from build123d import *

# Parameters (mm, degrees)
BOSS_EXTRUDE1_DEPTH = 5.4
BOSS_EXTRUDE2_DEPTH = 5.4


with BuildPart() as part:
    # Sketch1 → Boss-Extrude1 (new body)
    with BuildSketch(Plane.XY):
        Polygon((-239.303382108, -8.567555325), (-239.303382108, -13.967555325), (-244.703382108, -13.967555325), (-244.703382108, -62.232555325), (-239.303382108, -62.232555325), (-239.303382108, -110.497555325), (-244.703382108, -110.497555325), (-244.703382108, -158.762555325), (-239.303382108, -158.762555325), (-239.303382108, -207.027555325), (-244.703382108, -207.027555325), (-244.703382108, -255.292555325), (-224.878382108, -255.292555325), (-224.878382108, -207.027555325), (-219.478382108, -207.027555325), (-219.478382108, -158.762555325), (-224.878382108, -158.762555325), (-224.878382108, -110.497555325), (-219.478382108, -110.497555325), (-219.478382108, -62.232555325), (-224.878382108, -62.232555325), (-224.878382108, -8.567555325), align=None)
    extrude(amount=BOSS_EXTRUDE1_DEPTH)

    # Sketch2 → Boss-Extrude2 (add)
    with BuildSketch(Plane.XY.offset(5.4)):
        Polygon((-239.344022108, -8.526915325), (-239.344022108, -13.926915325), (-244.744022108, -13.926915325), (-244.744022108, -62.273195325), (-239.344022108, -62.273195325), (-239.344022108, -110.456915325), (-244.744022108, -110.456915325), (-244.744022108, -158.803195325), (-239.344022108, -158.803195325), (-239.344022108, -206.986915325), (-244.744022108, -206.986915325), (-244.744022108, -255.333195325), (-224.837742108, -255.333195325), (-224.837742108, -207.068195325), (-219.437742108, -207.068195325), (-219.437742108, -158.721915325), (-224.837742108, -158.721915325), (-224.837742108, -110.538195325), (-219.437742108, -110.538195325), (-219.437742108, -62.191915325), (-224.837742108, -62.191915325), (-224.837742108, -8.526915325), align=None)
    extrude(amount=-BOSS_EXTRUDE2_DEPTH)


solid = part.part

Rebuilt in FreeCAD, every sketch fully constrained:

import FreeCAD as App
import Part
import Sketcher
from FreeCAD import Vector


def add_polygon(sketch, points):
    """Adds a closed chain of lines whose ends are joined by coincident constraints."""
    first, n = sketch.GeometryCount, len(points)
    for a, b in zip(points, points[1:] + points[:1]):
        sketch.addGeometry(Part.LineSegment(App.Vector(*a, 0), App.Vector(*b, 0)), False)
    for i in range(n):
        sketch.addConstraint(Sketcher.Constraint("Coincident", first + i, 2, first + (i + 1) % n, 1))

doc = App.newDocument("Part")
body = doc.addObject("PartDesign::Body", "Body")

# Sketch on XY plane
sketch1 = body.newObject("Sketcher::SketchObject", "Sketch")
sketch1.AttachmentSupport = (doc.getObject("XY_Plane"), [""])
sketch1.MapMode = "FlatFace"
add_polygon(sketch1, [(-239, -9), (-239, -14), (-245, -14), (-245, -62), (-239, -62), (-239, -110), (-245, -110), (-245, -159), (-239, -159), (-239, -207), (-245, -207), (-245, -255), (-225, -255), (-225, -207), (-219, -207), (-219, -159), (-225, -159), (-225, -110), (-219, -110), (-219, -62), (-225, -62), (-225, -9)])  # lines 0-21
sketch1.addConstraint(Sketcher.Constraint("Vertical", 0))
sketch1.addConstraint(Sketcher.Constraint("Horizontal", 1))
sketch1.addConstraint(Sketcher.Constraint("Vertical", 2))
sketch1.addConstraint(Sketcher.Constraint("Horizontal", 3))
sketch1.addConstraint(Sketcher.Constraint("Vertical", 4))
sketch1.addConstraint(Sketcher.Constraint("Horizontal", 5))
sketch1.addConstraint(Sketcher.Constraint("Vertical", 6))
sketch1.addConstraint(Sketcher.Constraint("Horizontal", 7))
sketch1.addConstraint(Sketcher.Constraint("Vertical", 8))
sketch1.addConstraint(Sketcher.Constraint("Horizontal", 9))
sketch1.addConstraint(Sketcher.Constraint("Vertical", 10))
sketch1.addConstraint(Sketcher.Constraint("Horizontal", 11))
sketch1.addConstraint(Sketcher.Constraint("Vertical", 12))
sketch1.addConstraint(Sketcher.Constraint("Horizontal", 13))
sketch1.addConstraint(Sketcher.Constraint("Vertical", 14))
sketch1.addConstraint(Sketcher.Constraint("Horizontal", 15))
sketch1.addConstraint(Sketcher.Constraint("Vertical", 16))
sketch1.addConstraint(Sketcher.Constraint("Horizontal", 17))
sketch1.addConstraint(Sketcher.Constraint("Vertical", 18))
sketch1.addConstraint(Sketcher.Constraint("Horizontal", 19))
sketch1.addConstraint(Sketcher.Constraint("Vertical", 20))
sketch1.addConstraint(Sketcher.Constraint("Horizontal", 21))
sketch1.addConstraint(Sketcher.Constraint("Horizontal", 9, 2, 12, 2))
sketch1.addConstraint(Sketcher.Constraint("Horizontal", 7, 2, 14, 2))
sketch1.addConstraint(Sketcher.Constraint("Horizontal", 5, 2, 16, 2))
sketch1.addConstraint(Sketcher.Constraint("Horizontal", 3, 2, 18, 2))
sketch1.addConstraint(Sketcher.Constraint("Vertical", 0, 2, 3, 2))
sketch1.addConstraint(Sketcher.Constraint("Vertical", 2, 2, 5, 2))
sketch1.addConstraint(Sketcher.Constraint("Vertical", 4, 2, 7, 2))
sketch1.addConstraint(Sketcher.Constraint("Vertical", 6, 2, 9, 2))
sketch1.addConstraint(Sketcher.Constraint("Vertical", 12, 2, 15, 2))
sketch1.addConstraint(Sketcher.Constraint("Vertical", 14, 2, 17, 2))
sketch1.addConstraint(Sketcher.Constraint("Vertical", 16, 2, 19, 2))
sketch1.addConstraint(Sketcher.Constraint("Equal", 9, 13))
sketch1.addConstraint(Sketcher.Constraint("Equal", 19, 0))
sketch1.addConstraint(Sketcher.Constraint("Equal", 2, 4))
sketch1.addConstraint(Sketcher.Constraint("Equal", 4, 6))
sketch1.addConstraint(Sketcher.Constraint("Equal", 6, 8))
sketch1.addConstraint(Sketcher.Constraint("Equal", 8, 10))
sketch1.addConstraint(Sketcher.Constraint("DistanceX", 1, 2, 1, 1, 5.4))
sketch1.addConstraint(Sketcher.Constraint("DistanceX", 11, 1, 11, 2, 19.825))
sketch1.addConstraint(Sketcher.Constraint("DistanceY", 2, 2, 2, 1, 48.265))
sketch1.addConstraint(Sketcher.Constraint("DistanceX", 0, 2, -1, 1, 239.303382))
sketch1.addConstraint(Sketcher.Constraint("DistanceY", 0, 2, -1, 1, 13.967555))
pad1 = body.newObject("PartDesign::Pad", "Pad")
pad1.Profile = sketch1
pad1.Length = 5.4

# Sketch on XY plane
sketch2 = body.newObject("Sketcher::SketchObject", "Sketch001")
sketch2.AttachmentSupport = (doc.getObject("XY_Plane"), [""])
sketch2.MapMode = "FlatFace"
sketch2.AttachmentOffset = App.Placement(Vector(0, 0, 5.4), App.Rotation())
add_polygon(sketch2, [(-239, -9), (-239, -14), (-245, -14), (-245, -62), (-239, -62), (-239, -110), (-245, -110), (-245, -159), (-239, -159), (-239, -207), (-245, -207), (-245, -255), (-225, -255), (-225, -207), (-219, -207), (-219, -159), (-225, -159), (-225, -111), (-219, -111), (-219, -62), (-225, -62), (-225, -9)])  # lines 0-21
sketch2.addConstraint(Sketcher.Constraint("Vertical", 0))
sketch2.addConstraint(Sketcher.Constraint("Horizontal", 1))
sketch2.addConstraint(Sketcher.Constraint("Vertical", 2))
sketch2.addConstraint(Sketcher.Constraint("Horizontal", 3))
sketch2.addConstraint(Sketcher.Constraint("Vertical", 4))
sketch2.addConstraint(Sketcher.Constraint("Horizontal", 5))
sketch2.addConstraint(Sketcher.Constraint("Vertical", 6))
sketch2.addConstraint(Sketcher.Constraint("Horizontal", 7))
sketch2.addConstraint(Sketcher.Constraint("Vertical", 8))
sketch2.addConstraint(Sketcher.Constraint("Horizontal", 9))
sketch2.addConstraint(Sketcher.Constraint("Vertical", 10))
sketch2.addConstraint(Sketcher.Constraint("Horizontal", 11))
sketch2.addConstraint(Sketcher.Constraint("Vertical", 12))
sketch2.addConstraint(Sketcher.Constraint("Horizontal", 13))
sketch2.addConstraint(Sketcher.Constraint("Vertical", 14))
sketch2.addConstraint(Sketcher.Constraint("Horizontal", 15))
sketch2.addConstraint(Sketcher.Constraint("Vertical", 16))
sketch2.addConstraint(Sketcher.Constraint("Horizontal", 17))
sketch2.addConstraint(Sketcher.Constraint("Vertical", 18))
sketch2.addConstraint(Sketcher.Constraint("Horizontal", 19))
sketch2.addConstraint(Sketcher.Constraint("Vertical", 20))
sketch2.addConstraint(Sketcher.Constraint("Horizontal", 21))
sketch2.addConstraint(Sketcher.Constraint("Vertical", 0, 2, 3, 2))
sketch2.addConstraint(Sketcher.Constraint("Vertical", 2, 2, 5, 2))
sketch2.addConstraint(Sketcher.Constraint("Vertical", 4, 2, 7, 2))
sketch2.addConstraint(Sketcher.Constraint("Vertical", 6, 2, 9, 2))
sketch2.addConstraint(Sketcher.Constraint("Vertical", 12, 2, 15, 2))
sketch2.addConstraint(Sketcher.Constraint("Vertical", 14, 2, 17, 2))
sketch2.addConstraint(Sketcher.Constraint("Vertical", 16, 2, 19, 2))
sketch2.addConstraint(Sketcher.Constraint("Equal", 9, 13))
sketch2.addConstraint(Sketcher.Constraint("Equal", 19, 0))
sketch2.addConstraint(Sketcher.Constraint("Equal", 2, 6))
sketch2.addConstraint(Sketcher.Constraint("Equal", 4, 8))
sketch2.addConstraint(Sketcher.Constraint("Equal", 6, 10))
sketch2.addConstraint(Sketcher.Constraint("Equal", 10, 14))
sketch2.addConstraint(Sketcher.Constraint("Equal", 8, 16))
sketch2.addConstraint(Sketcher.Constraint("Equal", 14, 18))
sketch2.addConstraint(Sketcher.Constraint("DistanceX", 1, 2, 1, 1, 5.4))
sketch2.addConstraint(Sketcher.Constraint("DistanceY", 12, 1, 12, 2, 48.265))
sketch2.addConstraint(Sketcher.Constraint("DistanceY", 20, 1, 20, 2, 53.665))
sketch2.addConstraint(Sketcher.Constraint("DistanceX", 11, 1, 11, 2, 19.90628))
sketch2.addConstraint(Sketcher.Constraint("DistanceY", 2, 2, 2, 1, 48.34628))
sketch2.addConstraint(Sketcher.Constraint("DistanceX", 0, 2, -1, 1, 239.344022))
sketch2.addConstraint(Sketcher.Constraint("DistanceY", 0, 2, -1, 1, 13.926915))
pad2 = body.newObject("PartDesign::Pad", "Pad001")
pad2.Profile = sketch2
pad2.Length = 5.4
pad2.Reversed = True

doc.recompute()
